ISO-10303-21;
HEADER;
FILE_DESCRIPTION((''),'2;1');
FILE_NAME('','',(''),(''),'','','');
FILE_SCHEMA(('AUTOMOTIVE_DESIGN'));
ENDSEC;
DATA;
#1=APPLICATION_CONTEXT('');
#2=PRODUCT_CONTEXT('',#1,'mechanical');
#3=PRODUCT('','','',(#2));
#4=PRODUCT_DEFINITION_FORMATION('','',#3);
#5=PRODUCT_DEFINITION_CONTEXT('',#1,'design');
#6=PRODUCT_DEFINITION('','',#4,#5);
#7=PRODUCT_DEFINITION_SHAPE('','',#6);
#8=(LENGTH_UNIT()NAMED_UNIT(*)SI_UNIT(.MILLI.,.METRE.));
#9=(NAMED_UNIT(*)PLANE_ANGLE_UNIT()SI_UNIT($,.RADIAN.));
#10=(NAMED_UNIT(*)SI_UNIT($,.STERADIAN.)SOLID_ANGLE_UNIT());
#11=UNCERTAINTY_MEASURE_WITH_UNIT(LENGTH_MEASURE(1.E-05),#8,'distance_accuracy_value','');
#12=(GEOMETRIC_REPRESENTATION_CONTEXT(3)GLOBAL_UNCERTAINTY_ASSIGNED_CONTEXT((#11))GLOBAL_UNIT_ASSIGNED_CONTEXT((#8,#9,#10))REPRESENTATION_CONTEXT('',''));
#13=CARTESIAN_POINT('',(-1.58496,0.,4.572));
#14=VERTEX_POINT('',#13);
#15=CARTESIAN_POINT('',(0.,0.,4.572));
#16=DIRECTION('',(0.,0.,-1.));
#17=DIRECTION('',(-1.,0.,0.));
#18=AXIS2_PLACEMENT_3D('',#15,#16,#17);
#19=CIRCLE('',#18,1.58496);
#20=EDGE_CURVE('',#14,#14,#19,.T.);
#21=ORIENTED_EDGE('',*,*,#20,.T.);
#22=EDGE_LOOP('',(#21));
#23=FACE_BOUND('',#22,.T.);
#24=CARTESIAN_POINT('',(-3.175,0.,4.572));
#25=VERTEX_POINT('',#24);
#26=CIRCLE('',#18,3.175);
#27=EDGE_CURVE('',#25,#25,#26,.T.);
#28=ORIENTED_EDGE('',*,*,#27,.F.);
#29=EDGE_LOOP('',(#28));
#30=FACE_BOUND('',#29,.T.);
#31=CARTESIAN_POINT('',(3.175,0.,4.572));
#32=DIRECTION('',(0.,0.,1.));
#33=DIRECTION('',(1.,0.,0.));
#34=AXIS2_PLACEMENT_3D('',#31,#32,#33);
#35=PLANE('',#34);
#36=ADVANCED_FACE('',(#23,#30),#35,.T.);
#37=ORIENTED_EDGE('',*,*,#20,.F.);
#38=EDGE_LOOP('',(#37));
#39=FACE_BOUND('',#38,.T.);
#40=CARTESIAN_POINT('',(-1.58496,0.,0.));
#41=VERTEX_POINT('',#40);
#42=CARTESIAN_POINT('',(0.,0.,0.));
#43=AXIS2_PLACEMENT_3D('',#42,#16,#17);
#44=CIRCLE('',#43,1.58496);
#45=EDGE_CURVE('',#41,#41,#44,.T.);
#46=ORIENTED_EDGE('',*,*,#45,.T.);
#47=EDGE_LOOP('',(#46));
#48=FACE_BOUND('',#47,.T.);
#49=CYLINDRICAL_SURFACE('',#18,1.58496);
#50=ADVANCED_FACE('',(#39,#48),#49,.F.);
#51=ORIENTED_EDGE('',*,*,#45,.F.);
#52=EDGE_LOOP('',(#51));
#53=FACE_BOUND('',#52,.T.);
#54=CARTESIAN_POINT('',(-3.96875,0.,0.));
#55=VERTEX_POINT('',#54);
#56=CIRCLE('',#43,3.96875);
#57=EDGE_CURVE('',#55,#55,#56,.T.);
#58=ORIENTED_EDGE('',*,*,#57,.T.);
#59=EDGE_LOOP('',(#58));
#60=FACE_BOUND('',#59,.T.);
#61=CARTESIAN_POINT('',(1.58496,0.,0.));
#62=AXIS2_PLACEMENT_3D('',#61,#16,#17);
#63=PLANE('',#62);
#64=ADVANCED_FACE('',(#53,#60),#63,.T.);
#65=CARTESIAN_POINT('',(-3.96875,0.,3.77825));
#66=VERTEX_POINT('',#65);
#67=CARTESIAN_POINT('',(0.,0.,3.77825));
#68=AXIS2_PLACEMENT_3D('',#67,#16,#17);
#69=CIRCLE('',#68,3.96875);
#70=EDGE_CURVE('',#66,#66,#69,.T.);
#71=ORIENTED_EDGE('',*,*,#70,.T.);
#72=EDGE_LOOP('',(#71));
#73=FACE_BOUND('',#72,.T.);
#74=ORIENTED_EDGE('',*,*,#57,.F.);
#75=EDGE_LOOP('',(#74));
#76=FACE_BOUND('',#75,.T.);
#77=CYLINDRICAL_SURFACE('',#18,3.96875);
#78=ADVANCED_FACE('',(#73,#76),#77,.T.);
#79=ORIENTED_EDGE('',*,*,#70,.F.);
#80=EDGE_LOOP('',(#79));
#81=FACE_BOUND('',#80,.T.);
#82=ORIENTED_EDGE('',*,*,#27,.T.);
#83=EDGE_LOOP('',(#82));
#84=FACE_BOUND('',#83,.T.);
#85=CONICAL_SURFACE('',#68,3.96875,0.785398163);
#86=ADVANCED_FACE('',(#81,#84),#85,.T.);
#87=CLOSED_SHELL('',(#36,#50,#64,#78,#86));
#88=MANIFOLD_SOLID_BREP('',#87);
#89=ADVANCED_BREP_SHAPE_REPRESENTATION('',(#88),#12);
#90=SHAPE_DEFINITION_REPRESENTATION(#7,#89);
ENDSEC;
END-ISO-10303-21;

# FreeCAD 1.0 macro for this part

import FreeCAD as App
import Part
import Sketcher

V = App.Vector
Q = App.Units.Quantity

doc = App.newDocument("Part")
body = doc.addObject("PartDesign::Body", "Body")

# Sketch on XZ plane
sketch1 = body.newObject("Sketcher::SketchObject", "Sketch")
sketch1.AttachmentSupport = (doc.getObject("XZ_Plane"), [""])
sketch1.MapMode = "FlatFace"
sketch1.addGeometry([
    Part.LineSegment(V(3.96875, 3.77825, 0), V(3.175, 4.572, 0)),  # 0
    Part.LineSegment(V(3.175, 4.572, 0), V(1.58496, 4.572, 0)),  # 1
    Part.LineSegment(V(1.58496, 4.572, 0), V(1.58496, 0, 0)),  # 2
    Part.LineSegment(V(1.58496, 0, 0), V(3.96875, 0, 0)),  # 3
    Part.LineSegment(V(3.96875, 0, 0), V(3.96875, 3.77825, 0)),  # 4
], False)
sketch1.addConstraint([
    Sketcher.Constraint("Coincident", 0, 2, 1, 1),
    Sketcher.Constraint("Coincident", 1, 2, 2, 1),
    Sketcher.Constraint("Coincident", 2, 2, 3, 1),
    Sketcher.Constraint("Coincident", 3, 2, 4, 1),
    Sketcher.Constraint("Coincident", 4, 2, 0, 1),
    Sketcher.Constraint("Horizontal", 1),
    Sketcher.Constraint("Vertical", 2),
    Sketcher.Constraint("Horizontal", 3),
    Sketcher.Constraint("Vertical", 4),
    Sketcher.Constraint("PointOnObject", 2, 2, -1),
    Sketcher.Constraint("Angle", 0, Q("135 deg")),
    Sketcher.Constraint("DistanceY", 2, 2, 2, 1, Q("0.18 in")),
    Sketcher.Constraint("DistanceX", 1, 2, 1, 1, Q("0.0626 in")),
    Sketcher.Constraint("DistanceX", -1, 1, 0, 2, Q("0.125 in")),
    Sketcher.Constraint("DistanceX", -1, 1, 3, 2, Q("0.15625 in")),
])
revolution = body.newObject("PartDesign::Revolution", "Revolution")
revolution.Profile = sketch1
revolution.ReferenceAxis = (sketch1, ["V_Axis"])
revolution.Angle = 360

doc.recompute()
